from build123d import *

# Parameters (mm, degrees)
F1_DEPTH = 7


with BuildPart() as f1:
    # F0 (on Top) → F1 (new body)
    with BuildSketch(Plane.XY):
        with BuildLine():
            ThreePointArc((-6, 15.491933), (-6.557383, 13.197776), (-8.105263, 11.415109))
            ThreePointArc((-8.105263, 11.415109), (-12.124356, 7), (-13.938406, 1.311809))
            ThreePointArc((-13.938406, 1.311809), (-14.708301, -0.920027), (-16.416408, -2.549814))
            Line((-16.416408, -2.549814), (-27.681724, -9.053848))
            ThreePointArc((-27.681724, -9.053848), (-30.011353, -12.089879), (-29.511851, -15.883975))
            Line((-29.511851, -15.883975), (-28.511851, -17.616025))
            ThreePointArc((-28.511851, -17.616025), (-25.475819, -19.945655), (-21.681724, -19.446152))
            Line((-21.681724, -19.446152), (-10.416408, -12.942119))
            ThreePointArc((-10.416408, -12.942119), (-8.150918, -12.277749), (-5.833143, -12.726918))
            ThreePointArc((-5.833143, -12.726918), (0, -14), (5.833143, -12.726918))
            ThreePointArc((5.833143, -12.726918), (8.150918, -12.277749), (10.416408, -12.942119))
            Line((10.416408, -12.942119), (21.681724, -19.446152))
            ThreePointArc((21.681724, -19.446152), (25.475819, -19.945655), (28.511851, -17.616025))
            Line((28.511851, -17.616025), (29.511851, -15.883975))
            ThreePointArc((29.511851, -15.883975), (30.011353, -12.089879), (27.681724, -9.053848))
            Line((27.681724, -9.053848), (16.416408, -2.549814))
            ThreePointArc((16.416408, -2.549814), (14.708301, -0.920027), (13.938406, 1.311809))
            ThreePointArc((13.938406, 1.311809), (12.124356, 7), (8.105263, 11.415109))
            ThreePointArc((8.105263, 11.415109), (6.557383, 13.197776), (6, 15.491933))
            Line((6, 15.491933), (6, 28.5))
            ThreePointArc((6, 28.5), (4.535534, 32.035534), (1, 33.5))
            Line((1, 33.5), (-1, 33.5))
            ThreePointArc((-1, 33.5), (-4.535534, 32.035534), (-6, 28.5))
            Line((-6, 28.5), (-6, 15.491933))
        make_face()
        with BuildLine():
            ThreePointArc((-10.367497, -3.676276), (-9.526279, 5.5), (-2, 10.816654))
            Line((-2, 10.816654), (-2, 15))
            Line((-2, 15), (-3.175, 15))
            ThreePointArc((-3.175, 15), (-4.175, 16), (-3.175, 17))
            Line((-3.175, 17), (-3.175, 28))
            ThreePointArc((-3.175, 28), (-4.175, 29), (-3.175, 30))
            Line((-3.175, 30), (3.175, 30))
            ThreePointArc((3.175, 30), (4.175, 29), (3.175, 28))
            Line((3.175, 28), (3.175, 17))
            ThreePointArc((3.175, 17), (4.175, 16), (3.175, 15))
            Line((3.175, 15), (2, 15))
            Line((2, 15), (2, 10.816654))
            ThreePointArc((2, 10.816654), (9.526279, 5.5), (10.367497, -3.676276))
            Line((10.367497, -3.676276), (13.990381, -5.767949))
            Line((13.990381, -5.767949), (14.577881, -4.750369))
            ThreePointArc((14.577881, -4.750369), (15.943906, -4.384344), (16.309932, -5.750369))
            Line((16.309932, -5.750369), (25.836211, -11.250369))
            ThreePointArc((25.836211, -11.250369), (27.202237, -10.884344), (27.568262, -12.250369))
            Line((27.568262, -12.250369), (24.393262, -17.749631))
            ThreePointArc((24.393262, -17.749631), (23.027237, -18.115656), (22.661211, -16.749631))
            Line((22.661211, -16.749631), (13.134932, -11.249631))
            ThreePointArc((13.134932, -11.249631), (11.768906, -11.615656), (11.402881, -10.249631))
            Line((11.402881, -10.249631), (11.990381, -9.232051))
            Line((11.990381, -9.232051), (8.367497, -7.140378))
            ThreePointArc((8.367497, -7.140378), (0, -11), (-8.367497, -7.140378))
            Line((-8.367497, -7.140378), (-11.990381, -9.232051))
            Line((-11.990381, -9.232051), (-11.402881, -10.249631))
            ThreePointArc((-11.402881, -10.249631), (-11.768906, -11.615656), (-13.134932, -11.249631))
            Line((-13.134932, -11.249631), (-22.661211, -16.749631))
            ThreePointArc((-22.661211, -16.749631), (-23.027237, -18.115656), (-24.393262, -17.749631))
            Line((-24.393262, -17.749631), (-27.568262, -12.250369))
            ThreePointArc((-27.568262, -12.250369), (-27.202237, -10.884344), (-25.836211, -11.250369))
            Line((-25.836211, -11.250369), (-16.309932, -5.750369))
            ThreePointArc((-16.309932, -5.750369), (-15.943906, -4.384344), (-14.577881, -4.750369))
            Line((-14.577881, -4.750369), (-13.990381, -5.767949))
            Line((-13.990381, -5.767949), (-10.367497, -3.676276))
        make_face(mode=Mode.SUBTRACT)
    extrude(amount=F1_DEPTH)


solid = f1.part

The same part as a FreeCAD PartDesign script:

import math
import FreeCAD as App
import Part
import Sketcher

V = App.Vector
Q = App.Units.Quantity

doc = App.newDocument("Part")
params = doc.addObject("Spreadsheet::Sheet", "Params")
for row, (alias, value) in enumerate([
    ("sketch1_radius", "13.999998 mm"),
    ("sketch1_radius2", "4.999999 mm"),
    ("sketch1_radius3", "11.000001 mm"),
    ("sketch1_radius4", "1 mm"),
    ("sketch1_width", "2 mm"),
    ("pad1_length", "7 mm"),
], start=1):
    params.set(f"A{row}", alias)
    params.set(f"B{row}", "=" + value)
    params.setAlias(f"B{row}", alias)

body = doc.addObject("PartDesign::Body", "Body")

sketch1 = doc.addObject("Sketcher::SketchObject", "Sketch")
body.addObject(sketch1)
sketch1.AttachmentSupport = (doc.XY_Plane, [""])
sketch1.MapMode = "FlatFace"
sketch1.addGeometry([
    Part.ArcOfCircle(Part.Circle(V(-11, 15.5, 0), V(0, 0, 1), 5), math.radians(-55), math.radians(0)),
    Part.ArcOfCircle(Part.Circle(V(0, 0, 0), V(0, 0, 1), 14), math.radians(125), math.radians(175)),
    Part.ArcOfCircle(Part.Circle(V(-18.9, 1.8, 0), V(0, 0, 1), 5), math.radians(-60), math.radians(-5)),
    Part.LineSegment(V(-16.4, -2.5, 0), V(-27.7, -9.1, 0)),
    Part.ArcOfCircle(Part.Circle(V(-25.2, -13.4, 0), V(0, 0, 1), 5), math.radians(120), math.radians(210)),
    Part.LineSegment(V(-29.5, -15.9, 0), V(-28.5, -17.6, 0)),
    Part.ArcOfCircle(Part.Circle(V(-24.2, -15.1, 0), V(0, 0, 1), 5), math.radians(-150), math.radians(-60)),
    Part.LineSegment(V(-21.7, -19.4, 0), V(-10.4, -12.9, 0)),
    Part.ArcOfCircle(Part.Circle(V(-7.9, -17.3, 0), V(0, 0, 1), 5), math.radians(65), math.radians(120)),
    Part.ArcOfCircle(Part.Circle(V(0, 0, 0), V(0, 0, 1), 14), math.radians(-115), math.radians(-65)),
    Part.ArcOfCircle(Part.Circle(V(7.9, -17.3, 0), V(0, 0, 1), 5), math.radians(60), math.radians(115)),
    Part.LineSegment(V(10.4, -12.9, 0), V(21.7, -19.4, 0)),
    Part.ArcOfCircle(Part.Circle(V(24.2, -15.1, 0), V(0, 0, 1), 5), math.radians(-120), math.radians(-30)),
    Part.LineSegment(V(28.5, -17.6, 0), V(29.5, -15.9, 0)),
    Part.ArcOfCircle(Part.Circle(V(25.2, -13.4, 0), V(0, 0, 1), 5), math.radians(-30), math.radians(60)),
    Part.LineSegment(V(27.7, -9.1, 0), V(16.4, -2.5, 0)),
    Part.ArcOfCircle(Part.Circle(V(18.9, 1.8, 0), V(0, 0, 1), 5), math.radians(-175), math.radians(-120)),
    Part.ArcOfCircle(Part.Circle(V(0, 0, 0), V(0, 0, 1), 14), math.radians(5), math.radians(55)),
    Part.ArcOfCircle(Part.Circle(V(11, 15.5, 0), V(0, 0, 1), 5), math.radians(180), math.radians(235)),
    Part.LineSegment(V(6, 15.5, 0), V(6, 28.5, 0)),
    Part.ArcOfCircle(Part.Circle(V(1, 28.5, 0), V(0, 0, 1), 5), math.radians(0), math.radians(90)),
    Part.LineSegment(V(1, 33.5, 0), V(-1, 33.5, 0)),
    Part.ArcOfCircle(Part.Circle(V(-1, 28.5, 0), V(0, 0, 1), 5), math.radians(90), math.radians(180)),
    Part.LineSegment(V(-6, 28.5, 0), V(-6, 15.5, 0)),
    Part.LineSegment(V(-14, -5.8, 0), V(-10.4, -3.7, 0)),
    Part.ArcOfCircle(Part.Circle(V(0, 0, 0), V(0, 0, 1), 11), math.radians(100), math.radians(200)),
    Part.LineSegment(V(-2, 10.8, 0), V(-2, 15, 0)),
    Part.LineSegment(V(-2, 15, 0), V(-3.2, 15, 0)),
    Part.ArcOfCircle(Part.Circle(V(-3.2, 16, 0), V(0, 0, 1), 1), math.radians(90), math.radians(270)),
    Part.LineSegment(V(-3.2, 17, 0), V(-3.2, 28, 0)),
    Part.ArcOfCircle(Part.Circle(V(-3.2, 29, 0), V(0, 0, 1), 1), math.radians(90), math.radians(270)),
    Part.LineSegment(V(-3.2, 30, 0), V(3.2, 30, 0)),
    Part.ArcOfCircle(Part.Circle(V(3.2, 29, 0), V(0, 0, 1), 1), math.radians(-90), math.radians(90)),
    Part.LineSegment(V(3.2, 28, 0), V(3.2, 17, 0)),
    Part.ArcOfCircle(Part.Circle(V(3.2, 16, 0), V(0, 0, 1), 1), math.radians(-90), math.radians(90)),
    Part.LineSegment(V(3.2, 15, 0), V(2, 15, 0)),
    Part.LineSegment(V(2, 15, 0), V(2, 10.8, 0)),
    Part.ArcOfCircle(Part.Circle(V(0, 0, 0), V(0, 0, 1), 11), math.radians(-20), math.radians(80)),
    Part.LineSegment(V(10.4, -3.7, 0), V(14, -5.8, 0)),
    Part.LineSegment(V(14, -5.8, 0), V(14.6, -4.8, 0)),
    Part.ArcOfCircle(Part.Circle(V(15.4, -5.3, 0), V(0, 0, 1), 1), math.radians(-30), math.radians(150)),
    Part.LineSegment(V(16.3, -5.8, 0), V(25.8, -11.3, 0)),
    Part.ArcOfCircle(Part.Circle(V(26.7, -11.8, 0), V(0, 0, 1), 1), math.radians(-30), math.radians(150)),
    Part.LineSegment(V(27.6, -12.3, 0), V(24.4, -17.7, 0)),
    Part.ArcOfCircle(Part.Circle(V(23.5, -17.2, 0), V(0, 0, 1), 1), math.radians(150), math.radians(330)),
    Part.LineSegment(V(22.7, -16.7, 0), V(13.1, -11.2, 0)),
    Part.ArcOfCircle(Part.Circle(V(12.3, -10.7, 0), V(0, 0, 1), 1), math.radians(150), math.radians(330)),
    Part.LineSegment(V(11.4, -10.2, 0), V(12, -9.2, 0)),
    Part.LineSegment(V(12, -9.2, 0), V(8.4, -7.1, 0)),
    Part.ArcOfCircle(Part.Circle(V(0, 0, 0), V(0, 0, 1), 11), math.radians(-140), math.radians(-40)),
    Part.LineSegment(V(-8.4, -7.1, 0), V(-12, -9.2, 0)),
    Part.LineSegment(V(-12, -9.2, 0), V(-11.4, -10.2, 0)),
    Part.ArcOfCircle(Part.Circle(V(-12.3, -10.7, 0), V(0, 0, 1), 1), math.radians(-150), math.radians(30)),
    Part.LineSegment(V(-13.1, -11.2, 0), V(-22.7, -16.7, 0)),
    Part.ArcOfCircle(Part.Circle(V(-23.5, -17.2, 0), V(0, 0, 1), 1), math.radians(-150), math.radians(30)),
    Part.LineSegment(V(-24.4, -17.7, 0), V(-27.6, -12.3, 0)),
    Part.ArcOfCircle(Part.Circle(V(-26.7, -11.8, 0), V(0, 0, 1), 1), math.radians(30), math.radians(210)),
    Part.LineSegment(V(-25.8, -11.3, 0), V(-16.3, -5.8, 0)),
    Part.ArcOfCircle(Part.Circle(V(-15.4, -5.3, 0), V(0, 0, 1), 1), math.radians(30), math.radians(210)),
    Part.LineSegment(V(-14.6, -4.8, 0), V(-14, -5.8, 0)),
], False)
sketch1.addConstraint([
    Sketcher.Constraint("Tangent", 0, 1, 1, 1),
    Sketcher.Constraint("Tangent", 1, 2, 2, 2),
    Sketcher.Constraint("Tangent", 2, 1, 3, 1),
    Sketcher.Constraint("Tangent", 3, 2, 4, 1),
    Sketcher.Constraint("Tangent", 4, 2, 5, 1),
    Sketcher.Constraint("Tangent", 5, 2, 6, 1),
    Sketcher.Constraint("Tangent", 6, 2, 7, 1),
    Sketcher.Constraint("Tangent", 7, 2, 8, 2),
    Sketcher.Constraint("Tangent", 8, 1, 9, 1),
    Sketcher.Constraint("Tangent", 9, 2, 10, 2),
    Sketcher.Constraint("Tangent", 10, 1, 11, 1),
    Sketcher.Constraint("Tangent", 11, 2, 12, 1),
    Sketcher.Constraint("Tangent", 12, 2, 13, 1),
    Sketcher.Constraint("Tangent", 13, 2, 14, 1),
    Sketcher.Constraint("Tangent", 14, 2, 15, 1),
    Sketcher.Constraint("Tangent", 15, 2, 16, 2),
    Sketcher.Constraint("Tangent", 16, 1, 17, 1),
    Sketcher.Constraint("Tangent", 17, 2, 18, 2),
    Sketcher.Constraint("Tangent", 18, 1, 19, 1),
    Sketcher.Constraint("Tangent", 19, 2, 20, 1),
    Sketcher.Constraint("Tangent", 20, 2, 21, 1),
    Sketcher.Constraint("Tangent", 21, 2, 22, 1),
    Sketcher.Constraint("Tangent", 22, 2, 23, 1),
    Sketcher.Constraint("Tangent", 23, 2, 0, 2),
    Sketcher.Constraint("Coincident", 24, 2, 25, 2),
    Sketcher.Constraint("Coincident", 25, 1, 26, 1),
    Sketcher.Constraint("Coincident", 26, 2, 27, 1),
    Sketcher.Constraint("Tangent", 27, 2, 28, 2),
    Sketcher.Constraint("Coincident", 28, 1, 29, 1),
    Sketcher.Constraint("Coincident", 29, 2, 30, 2),
    Sketcher.Constraint("Tangent", 30, 1, 31, 1),
    Sketcher.Constraint("Tangent", 31, 2, 32, 2),
    Sketcher.Constraint("Coincident", 32, 1, 33, 1),
    Sketcher.Constraint("Coincident", 33, 2, 34, 2),
    Sketcher.Constraint("Tangent", 34, 1, 35, 1),
    Sketcher.Constraint("Coincident", 35, 2, 36, 1),
    Sketcher.Constraint("Coincident", 36, 2, 37, 2),
    Sketcher.Constraint("Coincident", 37, 1, 38, 1),
    Sketcher.Constraint("Coincident", 38, 2, 39, 1),
    Sketcher.Constraint("Tangent", 39, 2, 40, 2),
    Sketcher.Constraint("Coincident", 40, 1, 41, 1),
    Sketcher.Constraint("Coincident", 41, 2, 42, 2),
    Sketcher.Constraint("Tangent", 42, 1, 43, 1),
    Sketcher.Constraint("Tangent", 43, 2, 44, 2),
    Sketcher.Constraint("Coincident", 44, 1, 45, 1),
    Sketcher.Constraint("Coincident", 45, 2, 46, 2),
    Sketcher.Constraint("Tangent", 46, 1, 47, 1),
    Sketcher.Constraint("Coincident", 47, 2, 48, 1),
    Sketcher.Constraint("Coincident", 48, 2, 49, 2),
    Sketcher.Constraint("Coincident", 49, 1, 50, 1),
    Sketcher.Constraint("Coincident", 50, 2, 51, 1),
    Sketcher.Constraint("Tangent", 51, 2, 52, 2),
    Sketcher.Constraint("Coincident", 52, 1, 53, 1),
    Sketcher.Constraint("Coincident", 53, 2, 54, 2),
    Sketcher.Constraint("Tangent", 54, 1, 55, 1),
    Sketcher.Constraint("Tangent", 55, 2, 56, 2),
    Sketcher.Constraint("Coincident", 56, 1, 57, 1),
    Sketcher.Constraint("Coincident", 57, 2, 58, 2),
    Sketcher.Constraint("Tangent", 58, 1, 59, 1),
    Sketcher.Constraint("Coincident", 59, 2, 24, 1),
    Sketcher.Constraint("Vertical", 19),
    Sketcher.Constraint("Horizontal", 21),
    Sketcher.Constraint("Vertical", 23),
    Sketcher.Constraint("Vertical", 26),
    Sketcher.Constraint("Horizontal", 27),
    Sketcher.Constraint("Vertical", 29),
    Sketcher.Constraint("Horizontal", 31),
    Sketcher.Constraint("Vertical", 33),
    Sketcher.Constraint("Horizontal", 35),
    Sketcher.Constraint("Vertical", 36),
    Sketcher.Constraint("Coincident", 1, 3, -1, 1),
    Sketcher.Constraint("Coincident", 9, 3, -1, 1),
    Sketcher.Constraint("Coincident", 17, 3, -1, 1),
    Sketcher.Constraint("Coincident", 25, 3, -1, 1),
    Sketcher.Constraint("Coincident", 37, 3, -1, 1),
    Sketcher.Constraint("Coincident", 49, 3, -1, 1),
    Sketcher.Constraint("Equal", 2, 4),
    Sketcher.Constraint("Equal", 4, 6),
    Sketcher.Constraint("Equal", 1, 9),
    Sketcher.Constraint("Equal", 8, 10),
    Sketcher.Constraint("Equal", 6, 12),
    Sketcher.Constraint("Equal", 12, 14),
    Sketcher.Constraint("Equal", 14, 16),
    Sketcher.Constraint("Equal", 9, 17),
    Sketcher.Constraint("Equal", 12, 18),
    Sketcher.Constraint("Equal", 16, 20),
    Sketcher.Constraint("Equal", 20, 22),
    Sketcher.Constraint("Equal", 28, 30),
    Sketcher.Constraint("Equal", 30, 32),
    Sketcher.Constraint("Equal", 32, 34),
    Sketcher.Constraint("Equal", 25, 37),
    Sketcher.Constraint("Equal", 34, 40),
    Sketcher.Constraint("Equal", 40, 42),
    Sketcher.Constraint("Equal", 42, 44),
    Sketcher.Constraint("Equal", 44, 46),
    Sketcher.Constraint("Equal", 37, 49),
    Sketcher.Constraint("Equal", 46, 52),
    Sketcher.Constraint("Equal", 52, 54),
    Sketcher.Constraint("Equal", 54, 56),
    Sketcher.Constraint("Equal", 56, 58),
    Sketcher.Constraint("Symmetric", 6, 3, 12, 3, -2),
    Sketcher.Constraint("Symmetric", 4, 3, 14, 3, -2),
    Sketcher.Constraint("Symmetric", 0, 3, 18, 3, -2),
    Sketcher.Constraint("Symmetric", 28, 3, 34, 3, -2),
    Sketcher.Constraint("Symmetric", 46, 3, 52, 3, -2),
    Sketcher.Constraint("Symmetric", 44, 3, 54, 3, -2),
    Sketcher.Constraint("Symmetric", 42, 3, 56, 3, -2),
    Sketcher.Constraint("Symmetric", 40, 3, 58, 3, -2),
    Sketcher.Constraint("Symmetric", 47, 2, 50, 2, -2),
    Sketcher.Constraint("Symmetric", 38, 2, 59, 2, -2),
    Sketcher.Constraint("Perpendicular", 3, 5),
    Sketcher.Constraint("Perpendicular", 5, 7),
    Sketcher.Constraint("Perpendicular", 11, 13),
    Sketcher.Constraint("Perpendicular", 13, 15),
    Sketcher.Constraint("Parallel", 7, 24),
    Sketcher.Constraint("Parallel", 15, 38),
    Sketcher.Constraint("Perpendicular", 38, 39),
    Sketcher.Constraint("Perpendicular", 39, 41),
    Sketcher.Constraint("Perpendicular", 41, 43),
    Sketcher.Constraint("Perpendicular", 43, 45),
    Sketcher.Constraint("Perpendicular", 45, 47),
    Sketcher.Constraint("Perpendicular", 47, 48),
    Sketcher.Constraint("Parallel", 24, 50),
    Sketcher.Constraint("Perpendicular", 51, 53),
    Sketcher.Constraint("Perpendicular", 55, 57),
    Sketcher.Constraint("Horizontal", 25, 1, 36, 2),
    Sketcher.Constraint("Horizontal", 45, 2, 52, 1),
    Sketcher.Constraint("Horizontal", 41, 2, 56, 1),
    Sketcher.Constraint("Vertical", 28, 3, 30, 3),
    Sketcher.Constraint("Vertical", 32, 3, 34, 3),
    Sketcher.Constraint("Vertical", 27, 2, 28, 1),
    Sketcher.Constraint("Vertical", 31, 2, 32, 1),
    Sketcher.Constraint("Equal", 3, 7),
    Sketcher.Constraint("Equal", 41, 45),
    Sketcher.Constraint("Equal", 39, 47),
    Sketcher.Constraint("Equal", 38, 48),
    Sketcher.Constraint("Radius", 1, 13.999998),
    Sketcher.Constraint("Radius", 2, 4.999999),
    Sketcher.Constraint("Radius", 25, 11.000001),
    Sketcher.Constraint("Radius", 28, 1.0),
    Sketcher.Constraint("DistanceX", 21, 2, 21, 1, 2.0),
    Sketcher.Constraint("DistanceY", 29, 1, 29, 2, 11.0),
    Sketcher.Constraint("Angle", 3, Q("-149.999997 deg")),
    Sketcher.Constraint("Distance", 5, 1.999999),
    Sketcher.Constraint("Distance", 41, 11.0),
    Sketcher.Constraint("DistanceY", -1, 1, 28, 3, 16.0),
    Sketcher.Constraint("DistanceX", 25, 1, -1, 1, 2.0),
    Sketcher.Constraint("DistanceX", 31, 1, 31, 2, 6.35),
    Sketcher.Constraint("DistanceY", -1, 1, 20, 3, 28.5),
    Sketcher.Constraint("Distance", 43, 6.350001),
    Sketcher.Constraint("Distance", 39, 1.175),
    Sketcher.Constraint("Radius", 8, 5.000004),
    Sketcher.Constraint("DistanceY", 40, 3, -1, 1, 5.25037),
    Sketcher.Constraint("DistanceY", 42, 3, -1, 1, 11.750369),
    Sketcher.Constraint("DistanceY", 46, 3, -1, 1, 10.749631),
    Sketcher.Constraint("DistanceX", 4, 2, -1, 1, 29.511851),
    Sketcher.Constraint("DistanceX", -1, 1, 40, 1, 16.309932),
    Sketcher.Constraint("DistanceX", -1, 1, 44, 1, 22.661211),
])
sketch1.setExpression("Constraints[136]", "Params.sketch1_radius")
sketch1.setExpression("Constraints[137]", "Params.sketch1_radius2")
sketch1.setExpression("Constraints[138]", "Params.sketch1_radius3")
sketch1.setExpression("Constraints[139]", "Params.sketch1_radius4")
sketch1.setExpression("Constraints[140]", "Params.sketch1_width")
pad1 = doc.addObject("PartDesign::Pad", "Pad")
body.addObject(pad1)
pad1.Profile = sketch1
pad1.setExpression("Length", "Params.pad1_length")

doc.recompute()
